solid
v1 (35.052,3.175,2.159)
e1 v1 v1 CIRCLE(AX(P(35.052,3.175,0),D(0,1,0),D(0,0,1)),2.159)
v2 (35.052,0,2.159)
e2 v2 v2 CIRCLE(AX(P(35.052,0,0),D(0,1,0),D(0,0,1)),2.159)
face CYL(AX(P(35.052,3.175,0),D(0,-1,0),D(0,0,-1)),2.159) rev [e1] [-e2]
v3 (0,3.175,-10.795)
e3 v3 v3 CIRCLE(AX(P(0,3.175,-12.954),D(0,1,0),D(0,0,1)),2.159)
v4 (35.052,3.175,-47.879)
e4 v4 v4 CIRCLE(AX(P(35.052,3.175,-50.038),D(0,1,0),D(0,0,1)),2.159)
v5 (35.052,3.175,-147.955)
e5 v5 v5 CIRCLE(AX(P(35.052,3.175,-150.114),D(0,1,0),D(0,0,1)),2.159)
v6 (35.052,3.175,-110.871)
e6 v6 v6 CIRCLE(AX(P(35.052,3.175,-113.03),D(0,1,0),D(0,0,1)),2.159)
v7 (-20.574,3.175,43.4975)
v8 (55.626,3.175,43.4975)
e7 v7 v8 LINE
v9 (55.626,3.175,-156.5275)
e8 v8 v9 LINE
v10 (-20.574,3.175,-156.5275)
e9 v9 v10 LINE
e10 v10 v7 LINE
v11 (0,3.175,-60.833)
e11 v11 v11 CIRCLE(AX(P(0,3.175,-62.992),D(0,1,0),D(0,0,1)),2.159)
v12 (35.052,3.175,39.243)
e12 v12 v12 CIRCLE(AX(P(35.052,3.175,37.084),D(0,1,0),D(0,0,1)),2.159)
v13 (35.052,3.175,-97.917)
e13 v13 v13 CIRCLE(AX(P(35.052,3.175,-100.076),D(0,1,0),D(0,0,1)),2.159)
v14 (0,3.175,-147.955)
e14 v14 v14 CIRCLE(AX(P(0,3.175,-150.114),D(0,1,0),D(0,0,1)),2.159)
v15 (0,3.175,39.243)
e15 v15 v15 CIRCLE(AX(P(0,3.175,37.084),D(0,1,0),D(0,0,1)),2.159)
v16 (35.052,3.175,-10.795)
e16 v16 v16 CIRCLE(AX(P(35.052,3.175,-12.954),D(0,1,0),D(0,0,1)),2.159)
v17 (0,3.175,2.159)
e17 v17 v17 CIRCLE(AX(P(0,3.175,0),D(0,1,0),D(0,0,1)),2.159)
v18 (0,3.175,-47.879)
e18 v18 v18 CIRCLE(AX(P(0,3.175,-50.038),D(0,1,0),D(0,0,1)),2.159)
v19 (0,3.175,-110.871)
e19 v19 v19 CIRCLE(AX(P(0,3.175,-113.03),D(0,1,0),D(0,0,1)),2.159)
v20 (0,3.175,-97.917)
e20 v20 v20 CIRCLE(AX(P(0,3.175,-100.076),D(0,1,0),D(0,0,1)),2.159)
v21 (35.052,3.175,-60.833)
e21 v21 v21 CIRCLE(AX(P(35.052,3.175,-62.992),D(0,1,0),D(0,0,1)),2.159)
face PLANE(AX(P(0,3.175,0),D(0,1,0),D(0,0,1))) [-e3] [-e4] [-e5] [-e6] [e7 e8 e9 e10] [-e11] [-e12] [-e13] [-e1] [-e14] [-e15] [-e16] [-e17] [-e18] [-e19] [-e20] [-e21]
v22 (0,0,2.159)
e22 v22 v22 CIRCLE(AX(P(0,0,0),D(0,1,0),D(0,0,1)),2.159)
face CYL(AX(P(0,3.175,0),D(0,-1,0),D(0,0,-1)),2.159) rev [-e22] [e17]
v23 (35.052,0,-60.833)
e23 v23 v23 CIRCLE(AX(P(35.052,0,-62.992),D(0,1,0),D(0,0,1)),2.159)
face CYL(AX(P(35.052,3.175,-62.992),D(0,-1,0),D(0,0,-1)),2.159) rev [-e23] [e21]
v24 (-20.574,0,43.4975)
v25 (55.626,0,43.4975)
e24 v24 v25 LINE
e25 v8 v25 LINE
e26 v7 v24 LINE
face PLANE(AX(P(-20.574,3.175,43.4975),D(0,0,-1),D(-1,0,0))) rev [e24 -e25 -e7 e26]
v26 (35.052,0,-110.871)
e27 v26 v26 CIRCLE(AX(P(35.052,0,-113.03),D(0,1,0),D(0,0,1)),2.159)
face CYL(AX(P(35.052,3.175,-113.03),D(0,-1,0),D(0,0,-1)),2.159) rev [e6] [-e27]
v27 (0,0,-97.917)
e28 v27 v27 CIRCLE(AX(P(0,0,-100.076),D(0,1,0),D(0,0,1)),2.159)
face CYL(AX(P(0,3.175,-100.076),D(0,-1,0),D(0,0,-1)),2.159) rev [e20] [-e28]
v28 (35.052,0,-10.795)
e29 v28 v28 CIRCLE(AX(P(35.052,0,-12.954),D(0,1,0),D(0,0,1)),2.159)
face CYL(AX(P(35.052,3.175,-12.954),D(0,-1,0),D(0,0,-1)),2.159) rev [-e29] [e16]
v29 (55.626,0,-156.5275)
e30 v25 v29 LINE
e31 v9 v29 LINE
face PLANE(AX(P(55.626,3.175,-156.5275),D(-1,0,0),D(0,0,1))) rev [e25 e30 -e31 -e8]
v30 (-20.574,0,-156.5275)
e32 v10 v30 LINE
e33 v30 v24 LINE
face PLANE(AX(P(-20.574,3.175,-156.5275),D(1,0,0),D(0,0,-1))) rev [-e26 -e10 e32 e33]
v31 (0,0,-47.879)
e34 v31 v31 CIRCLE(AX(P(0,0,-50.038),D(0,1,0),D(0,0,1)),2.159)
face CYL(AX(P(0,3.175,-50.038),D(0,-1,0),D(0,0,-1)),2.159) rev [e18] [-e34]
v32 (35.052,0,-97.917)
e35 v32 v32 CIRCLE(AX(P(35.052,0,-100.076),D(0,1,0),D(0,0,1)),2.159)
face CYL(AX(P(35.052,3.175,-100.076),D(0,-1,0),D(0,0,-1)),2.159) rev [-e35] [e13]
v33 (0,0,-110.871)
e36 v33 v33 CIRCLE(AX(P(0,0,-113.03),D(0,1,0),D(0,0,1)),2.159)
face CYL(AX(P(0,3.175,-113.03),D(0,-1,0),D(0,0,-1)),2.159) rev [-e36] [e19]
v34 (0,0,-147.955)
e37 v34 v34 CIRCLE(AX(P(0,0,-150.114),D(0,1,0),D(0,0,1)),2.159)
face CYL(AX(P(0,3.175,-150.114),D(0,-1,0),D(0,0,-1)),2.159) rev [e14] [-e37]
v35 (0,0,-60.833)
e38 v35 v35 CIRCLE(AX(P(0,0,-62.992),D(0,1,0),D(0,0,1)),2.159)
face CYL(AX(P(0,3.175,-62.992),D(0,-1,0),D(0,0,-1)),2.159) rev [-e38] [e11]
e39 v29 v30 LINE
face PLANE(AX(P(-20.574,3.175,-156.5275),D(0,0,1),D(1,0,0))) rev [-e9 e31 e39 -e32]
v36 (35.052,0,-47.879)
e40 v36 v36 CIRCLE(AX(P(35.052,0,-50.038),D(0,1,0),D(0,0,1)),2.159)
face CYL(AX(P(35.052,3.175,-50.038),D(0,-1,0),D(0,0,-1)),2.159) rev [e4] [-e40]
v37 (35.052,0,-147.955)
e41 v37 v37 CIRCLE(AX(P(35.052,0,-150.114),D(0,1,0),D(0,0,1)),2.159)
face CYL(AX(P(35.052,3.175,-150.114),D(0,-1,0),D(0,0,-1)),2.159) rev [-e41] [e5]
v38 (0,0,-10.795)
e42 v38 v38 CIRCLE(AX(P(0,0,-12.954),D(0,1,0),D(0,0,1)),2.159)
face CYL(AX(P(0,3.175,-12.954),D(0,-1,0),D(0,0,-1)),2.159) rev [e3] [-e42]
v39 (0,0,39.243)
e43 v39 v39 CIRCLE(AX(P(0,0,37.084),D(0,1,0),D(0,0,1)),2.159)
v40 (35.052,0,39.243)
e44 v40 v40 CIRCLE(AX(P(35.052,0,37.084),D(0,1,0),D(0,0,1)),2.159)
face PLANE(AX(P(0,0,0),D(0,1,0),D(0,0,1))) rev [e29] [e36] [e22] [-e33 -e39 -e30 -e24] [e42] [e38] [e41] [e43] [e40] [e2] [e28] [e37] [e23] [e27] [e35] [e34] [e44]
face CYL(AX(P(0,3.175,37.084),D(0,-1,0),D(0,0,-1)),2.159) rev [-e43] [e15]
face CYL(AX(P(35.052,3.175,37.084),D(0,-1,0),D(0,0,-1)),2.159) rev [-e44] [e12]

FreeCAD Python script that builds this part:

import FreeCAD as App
import Part
import Sketcher
from FreeCAD import Vector
Q = App.Units.Quantity

doc = App.newDocument("Part")
params = doc.addObject("Spreadsheet::Sheet", "Params")
for row, (alias, value) in enumerate([
    ("sketch1_diameter", "0.17 in"),
    ("sketch1_width", "3 in"),
    ("sketch1_height", "7.875 in"),
    ("pad1_length", "0.125 in"),
], start=1):
    params.set(f"A{row}", alias)
    params.set(f"B{row}", "=" + value)
    params.setAlias(f"B{row}", alias)

body = doc.addObject("PartDesign::Body", "Body")

# Sketch on XZ plane
sketch1 = doc.addObject("Sketcher::SketchObject", "Sketch")
body.addObject(sketch1)
sketch1.AttachmentSupport = (doc.XZ_Plane, [""])
sketch1.MapMode = "FlatFace"
sketch1.addGeometry([
    Part.LineSegment(Vector(-20.6, -156.5, 0), Vector(-20.6, 43.5, 0)),  # 0
    Part.LineSegment(Vector(-20.6, 43.5, 0), Vector(55.6, 43.5, 0)),  # 1
    Part.LineSegment(Vector(55.6, 43.5, 0), Vector(55.6, -156.5, 0)),  # 2
    Part.LineSegment(Vector(55.6, -156.5, 0), Vector(-20.6, -156.5, 0)),  # 3
    Part.Circle(Vector(0, 37.1, 0), Vector(0, 0, 1), 2.2),  # 4
    Part.Circle(Vector(0, 0, 0), Vector(0, 0, 1), 2.2),  # 5
    Part.Circle(Vector(0, -13, 0), Vector(0, 0, 1), 2.2),  # 6
    Part.Circle(Vector(0, -50, 0), Vector(0, 0, 1), 2.2),  # 7
    Part.Circle(Vector(35.1, 37.1, 0), Vector(0, 0, 1), 2.2),  # 8
    Part.Circle(Vector(35.1, 0, 0), Vector(0, 0, 1), 2.2),  # 9
    Part.Circle(Vector(35.1, -13, 0), Vector(0, 0, 1), 2.2),  # 10
    Part.Circle(Vector(35.1, -50, 0), Vector(0, 0, 1), 2.2),  # 11
    Part.Circle(Vector(0, -63, 0), Vector(0, 0, 1), 2.2),  # 12
    Part.Circle(Vector(0, -100.1, 0), Vector(0, 0, 1), 2.2),  # 13
    Part.Circle(Vector(0, -113, 0), Vector(0, 0, 1), 2.2),  # 14
    Part.Circle(Vector(0, -150.1, 0), Vector(0, 0, 1), 2.2),  # 15
    Part.Circle(Vector(35.1, -63, 0), Vector(0, 0, 1), 2.2),  # 16
    Part.Circle(Vector(35.1, -100.1, 0), Vector(0, 0, 1), 2.2),  # 17
    Part.Circle(Vector(35.1, -113, 0), Vector(0, 0, 1), 2.2),  # 18
    Part.Circle(Vector(35.1, -150.1, 0), Vector(0, 0, 1), 2.2),  # 19
], False)
sketch1.addConstraint([
    Sketcher.Constraint("Coincident", 0, 2, 1, 1),
    Sketcher.Constraint("Coincident", 1, 2, 2, 1),
    Sketcher.Constraint("Coincident", 2, 2, 3, 1),
    Sketcher.Constraint("Coincident", 3, 2, 0, 1),
    Sketcher.Constraint("Vertical", 0),
    Sketcher.Constraint("Horizontal", 1),
    Sketcher.Constraint("Vertical", 2),
    Sketcher.Constraint("Horizontal", 3),
    Sketcher.Constraint("Coincident", 5, 3, -1, 1),
    Sketcher.Constraint("Equal", 4, 5),
    Sketcher.Constraint("Equal", 5, 6),
    Sketcher.Constraint("Equal", 6, 7),
    Sketcher.Constraint("Equal", 7, 8),
    Sketcher.Constraint("Equal", 8, 9),
    Sketcher.Constraint("Equal", 9, 10),
    Sketcher.Constraint("Equal", 10, 11),
    Sketcher.Constraint("Equal", 11, 12),
    Sketcher.Constraint("Equal", 12, 13),
    Sketcher.Constraint("Equal", 13, 14),
    Sketcher.Constraint("Equal", 14, 15),
    Sketcher.Constraint("Equal", 15, 16),
    Sketcher.Constraint("Equal", 16, 17),
    Sketcher.Constraint("Equal", 17, 18),
    Sketcher.Constraint("Equal", 18, 19),
    Sketcher.Constraint("PointOnObject", 4, 3, -2),
    Sketcher.Constraint("PointOnObject", 6, 3, -2),
    Sketcher.Constraint("PointOnObject", 7, 3, -2),
    Sketcher.Constraint("PointOnObject", 9, 3, -1),
    Sketcher.Constraint("PointOnObject", 12, 3, -2),
    Sketcher.Constraint("PointOnObject", 13, 3, -2),
    Sketcher.Constraint("PointOnObject", 14, 3, -2),
    Sketcher.Constraint("PointOnObject", 15, 3, -2),
    Sketcher.Constraint("Horizontal", 4, 3, 8, 3),
    Sketcher.Constraint("Horizontal", 6, 3, 10, 3),
    Sketcher.Constraint("Horizontal", 7, 3, 11, 3),
    Sketcher.Constraint("Horizontal", 12, 3, 16, 3),
    Sketcher.Constraint("Horizontal", 13, 3, 17, 3),
    Sketcher.Constraint("Horizontal", 14, 3, 18, 3),
    Sketcher.Constraint("Horizontal", 15, 3, 19, 3),
    Sketcher.Constraint("Vertical", 8, 3, 9, 3),
    Sketcher.Constraint("Vertical", 9, 3, 10, 3),
    Sketcher.Constraint("Vertical", 10, 3, 11, 3),
    Sketcher.Constraint("Vertical", 11, 3, 16, 3),
    Sketcher.Constraint("Vertical", 16, 3, 17, 3),
    Sketcher.Constraint("Vertical", 17, 3, 18, 3),
    Sketcher.Constraint("Vertical", 18, 3, 19, 3),
    Sketcher.Constraint("Diameter", 4, Q("0.17 in")),
    Sketcher.Constraint("DistanceX", 1, 1, 1, 2, Q("3 in")),
    Sketcher.Constraint("DistanceY", 0, 1, 0, 2, Q("7.875 in")),
    Sketcher.Constraint("DistanceY", -1, 1, 4, 3, Q("1.46 in")),
    Sketcher.Constraint("DistanceY", 6, 3, -1, 1, Q("0.51 in")),
    Sketcher.Constraint("DistanceY", 7, 3, -1, 1, Q("1.97 in")),
    Sketcher.Constraint("DistanceX", -1, 1, 8, 3, Q("1.38 in")),
    Sketcher.Constraint("DistanceY", 12, 3, -1, 1, Q("2.48 in")),
    Sketcher.Constraint("DistanceY", 13, 3, -1, 1, Q("3.94 in")),
    Sketcher.Constraint("DistanceY", 14, 3, -1, 1, Q("4.45 in")),
    Sketcher.Constraint("DistanceY", 15, 3, -1, 1, Q("5.91 in")),
    Sketcher.Constraint("DistanceX", 0, 2, -1, 1, Q("0.81 in")),
    Sketcher.Constraint("DistanceY", -1, 1, 0, 2, Q("1.7125 in")),
])
sketch1.setExpression("Constraints[46]", "Params.sketch1_diameter")
sketch1.setExpression("Constraints[47]", "Params.sketch1_width")
sketch1.setExpression("Constraints[48]", "Params.sketch1_height")
pad1 = doc.addObject("PartDesign::Pad", "Pad")
body.addObject(pad1)
pad1.Profile = sketch1
pad1.setExpression("Length", "Params.pad1_length")
pad1.Reversed = True

doc.recompute()
